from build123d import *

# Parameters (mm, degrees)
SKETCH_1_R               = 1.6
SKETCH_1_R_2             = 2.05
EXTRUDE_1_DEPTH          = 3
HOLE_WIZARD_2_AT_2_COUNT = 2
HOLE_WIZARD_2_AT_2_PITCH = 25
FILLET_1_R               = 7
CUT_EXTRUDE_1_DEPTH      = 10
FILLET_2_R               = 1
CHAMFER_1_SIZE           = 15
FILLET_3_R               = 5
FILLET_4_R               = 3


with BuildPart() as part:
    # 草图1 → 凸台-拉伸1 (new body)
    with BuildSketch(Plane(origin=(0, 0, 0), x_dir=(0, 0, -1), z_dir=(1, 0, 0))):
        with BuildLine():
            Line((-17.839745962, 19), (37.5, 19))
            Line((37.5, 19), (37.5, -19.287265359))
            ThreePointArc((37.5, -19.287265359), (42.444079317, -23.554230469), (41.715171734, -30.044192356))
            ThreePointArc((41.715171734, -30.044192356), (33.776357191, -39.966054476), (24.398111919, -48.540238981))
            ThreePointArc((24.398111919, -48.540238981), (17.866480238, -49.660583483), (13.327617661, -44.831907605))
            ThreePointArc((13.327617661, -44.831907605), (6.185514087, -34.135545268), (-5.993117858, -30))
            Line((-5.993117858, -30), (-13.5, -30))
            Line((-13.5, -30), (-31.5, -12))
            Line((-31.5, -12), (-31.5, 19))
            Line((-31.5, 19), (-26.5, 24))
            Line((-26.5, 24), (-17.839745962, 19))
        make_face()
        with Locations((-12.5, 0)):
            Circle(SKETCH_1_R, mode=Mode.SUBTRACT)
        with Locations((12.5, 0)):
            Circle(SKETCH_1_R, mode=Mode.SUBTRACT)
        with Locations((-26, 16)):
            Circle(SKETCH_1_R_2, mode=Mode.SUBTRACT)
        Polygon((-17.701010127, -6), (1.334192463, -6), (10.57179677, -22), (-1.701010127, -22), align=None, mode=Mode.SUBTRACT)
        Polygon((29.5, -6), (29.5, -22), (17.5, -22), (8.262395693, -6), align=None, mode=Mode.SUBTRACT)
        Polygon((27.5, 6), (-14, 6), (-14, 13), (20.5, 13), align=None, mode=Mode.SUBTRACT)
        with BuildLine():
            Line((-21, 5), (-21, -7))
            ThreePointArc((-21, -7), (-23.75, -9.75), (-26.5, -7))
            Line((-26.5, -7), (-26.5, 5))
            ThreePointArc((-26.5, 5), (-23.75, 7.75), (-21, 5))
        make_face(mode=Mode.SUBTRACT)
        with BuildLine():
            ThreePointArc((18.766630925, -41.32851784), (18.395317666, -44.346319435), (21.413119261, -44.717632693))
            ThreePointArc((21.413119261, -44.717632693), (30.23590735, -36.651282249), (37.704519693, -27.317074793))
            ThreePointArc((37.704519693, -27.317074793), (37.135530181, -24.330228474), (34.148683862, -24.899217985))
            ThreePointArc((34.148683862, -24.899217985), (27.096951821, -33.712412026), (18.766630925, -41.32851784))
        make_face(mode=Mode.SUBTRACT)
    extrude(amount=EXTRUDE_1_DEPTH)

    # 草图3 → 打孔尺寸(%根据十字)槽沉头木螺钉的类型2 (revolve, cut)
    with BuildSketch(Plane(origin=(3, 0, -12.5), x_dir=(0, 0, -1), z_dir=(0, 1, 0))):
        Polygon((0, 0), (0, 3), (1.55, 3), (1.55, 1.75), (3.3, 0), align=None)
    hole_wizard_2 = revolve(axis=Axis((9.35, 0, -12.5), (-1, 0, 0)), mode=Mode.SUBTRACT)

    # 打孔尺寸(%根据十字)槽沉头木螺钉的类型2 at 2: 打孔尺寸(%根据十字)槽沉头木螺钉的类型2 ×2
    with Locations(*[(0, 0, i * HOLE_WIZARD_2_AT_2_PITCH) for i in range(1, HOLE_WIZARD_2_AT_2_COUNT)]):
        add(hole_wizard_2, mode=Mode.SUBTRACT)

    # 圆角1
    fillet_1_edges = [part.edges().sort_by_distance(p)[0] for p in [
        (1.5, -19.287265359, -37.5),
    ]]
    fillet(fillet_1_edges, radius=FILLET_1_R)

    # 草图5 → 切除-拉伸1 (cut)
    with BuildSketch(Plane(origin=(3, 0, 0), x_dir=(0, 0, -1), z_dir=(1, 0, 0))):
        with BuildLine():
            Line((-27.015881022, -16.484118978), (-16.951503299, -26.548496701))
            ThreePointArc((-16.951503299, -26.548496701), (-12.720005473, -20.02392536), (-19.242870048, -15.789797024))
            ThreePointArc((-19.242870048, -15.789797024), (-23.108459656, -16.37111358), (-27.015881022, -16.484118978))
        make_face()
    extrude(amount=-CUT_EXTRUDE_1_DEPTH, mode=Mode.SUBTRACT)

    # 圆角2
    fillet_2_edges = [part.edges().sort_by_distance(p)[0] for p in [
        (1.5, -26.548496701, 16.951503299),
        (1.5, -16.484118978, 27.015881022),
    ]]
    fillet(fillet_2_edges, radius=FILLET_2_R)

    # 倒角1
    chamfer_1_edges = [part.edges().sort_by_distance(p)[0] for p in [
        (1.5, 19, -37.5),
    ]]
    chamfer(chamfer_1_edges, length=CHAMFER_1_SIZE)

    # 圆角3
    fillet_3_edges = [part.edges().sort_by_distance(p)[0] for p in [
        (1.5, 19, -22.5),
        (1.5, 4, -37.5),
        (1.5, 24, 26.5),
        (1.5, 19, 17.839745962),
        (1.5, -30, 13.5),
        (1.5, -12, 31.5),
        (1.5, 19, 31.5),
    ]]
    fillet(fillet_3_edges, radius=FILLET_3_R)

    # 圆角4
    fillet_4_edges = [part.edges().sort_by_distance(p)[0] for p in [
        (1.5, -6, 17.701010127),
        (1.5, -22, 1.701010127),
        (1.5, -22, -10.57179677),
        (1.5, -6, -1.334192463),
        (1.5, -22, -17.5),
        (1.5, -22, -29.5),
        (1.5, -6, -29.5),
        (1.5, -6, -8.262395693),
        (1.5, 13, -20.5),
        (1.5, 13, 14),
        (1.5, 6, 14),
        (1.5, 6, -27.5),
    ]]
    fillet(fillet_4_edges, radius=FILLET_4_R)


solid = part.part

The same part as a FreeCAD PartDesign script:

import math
import FreeCAD as App
import Part
import Sketcher
from FreeCAD import Vector
Q = App.Units.Quantity


def edges_at(feature, points):
    """Names of the edges that pass closest to the given points."""
    edges = feature.Shape.Edges
    near = lambda p: min(range(len(edges)), key=lambda i: edges[i].distToShape(Part.Vertex(*p))[0])
    return sorted({f"Edge{near(p) + 1}" for p in points})


def add_polygon(sketch, points):
    """Adds a closed chain of lines whose ends are joined by coincident constraints."""
    first, n = sketch.GeometryCount, len(points)
    for a, b in zip(points, points[1:] + points[:1]):
        sketch.addGeometry(Part.LineSegment(App.Vector(*a, 0), App.Vector(*b, 0)), False)
    for i in range(n):
        sketch.addConstraint(Sketcher.Constraint("Coincident", first + i, 2, first + (i + 1) % n, 1))

doc = App.newDocument("Part")
body = doc.addObject("PartDesign::Body", "Body")

# Sketch on YZ plane
sketch1 = body.newObject("Sketcher::SketchObject", "Sketch")
sketch1.AttachmentSupport = (doc.getObject("YZ_Plane"), [""])
sketch1.MapMode = "FlatFace"
sketch1.addGeometry(Part.LineSegment(Vector(19, -37.5, 0), Vector(19, 17.8, 0)), False)  # 0
sketch1.addGeometry(Part.LineSegment(Vector(19, 17.8, 0), Vector(24, 26.5, 0)), False)  # 1
sketch1.addGeometry(Part.LineSegment(Vector(24, 26.5, 0), Vector(19, 31.5, 0)), False)  # 2
sketch1.addGeometry(Part.LineSegment(Vector(19, 31.5, 0), Vector(-12, 31.5, 0)), False)  # 3
sketch1.addGeometry(Part.LineSegment(Vector(-12, 31.5, 0), Vector(-30, 13.5, 0)), False)  # 4
sketch1.addGeometry(Part.LineSegment(Vector(-30, 13.5, 0), Vector(-30, 6, 0)), False)  # 5
sketch1.addGeometry(Part.ArcOfCircle(Part.Circle(Vector(-50, 6, 0), Vector(0, 0, 1), 20), math.radians(-75), math.radians(0)), False)  # 6
sketch1.addGeometry(Part.ArcOfCircle(Part.Circle(Vector(-43, -20.1, 0), Vector(0, 0, 1), 7), math.radians(105), math.radians(218)), False)  # 7
sketch1.addGeometry(Part.ArcOfCircle(Part.Circle(Vector(16, 26, 0), Vector(0, 0, 1), 81.9), math.radians(-142.01), math.radians(-124.21)), False)  # 8
sketch1.addGeometry(Part.ArcOfCircle(Part.Circle(Vector(-26.1, -35.9, 0), Vector(0, 0, 1), 7), math.radians(-124), math.radians(-13)), False)  # 9
sketch1.addGeometry(Part.LineSegment(Vector(-19.3, -37.5, 0), Vector(19, -37.5, 0)), False)  # 10
sketch1.addGeometry(Part.ArcOfCircle(Part.Circle(Vector(16, 26, 0), Vector(0, 0, 1), 72.7), math.radians(-142.01), math.radians(-124.21)), False)  # 11
sketch1.addGeometry(Part.ArcOfCircle(Part.Circle(Vector(-26.1, -35.9, 0), Vector(0, 0, 1), 2.1), math.radians(-124), math.radians(56)), False)  # 12
sketch1.addGeometry(Part.ArcOfCircle(Part.Circle(Vector(16, 26, 0), Vector(0, 0, 1), 77), math.radians(-142.01), math.radians(-124.21)), False)  # 13
sketch1.addGeometry(Part.ArcOfCircle(Part.Circle(Vector(-43, -20.1, 0), Vector(0, 0, 1), 2.1), math.radians(38), math.radians(218)), False)  # 14
add_polygon(sketch1, [(-6, -29.5), (-22, -29.5), (-22, -17.5), (-6, -8.3)])  # lines 15-18
add_polygon(sketch1, [(-6, 17.7), (-6, -1.3), (-22, -10.6), (-22, 1.7)])  # lines 19-22
sketch1.addGeometry(Part.Circle(Vector(0, -12.5, 0), Vector(0, 0, 1), 1.6), False)  # 23
add_polygon(sketch1, [(6, -27.5), (6, 14), (13, 14), (13, -20.5)])  # lines 24-27
sketch1.addGeometry(Part.Circle(Vector(0, 12.5, 0), Vector(0, 0, 1), 1.6), False)  # 28
sketch1.addGeometry(Part.LineSegment(Vector(5, 21, 0), Vector(-7, 21, 0)), False)  # 29
sketch1.addGeometry(Part.ArcOfCircle(Part.Circle(Vector(-7, 23.8, 0), Vector(0, 0, 1), 2.8), math.radians(90), math.radians(270)), False)  # 30
sketch1.addGeometry(Part.LineSegment(Vector(-7, 26.5, 0), Vector(5, 26.5, 0)), False)  # 31
sketch1.addGeometry(Part.ArcOfCircle(Part.Circle(Vector(5, 23.8, 0), Vector(0, 0, 1), 2.8), math.radians(-90), math.radians(90)), False)  # 32
sketch1.addGeometry(Part.Circle(Vector(16, 26, 0), Vector(0, 0, 1), 2), False)  # 33
sketch1.addConstraint([
    Sketcher.Constraint("Coincident", 0, 2, 1, 1),
    Sketcher.Constraint("Coincident", 1, 2, 2, 1),
    Sketcher.Constraint("Coincident", 2, 2, 3, 1),
    Sketcher.Constraint("Coincident", 3, 2, 4, 1),
    Sketcher.Constraint("Coincident", 4, 2, 5, 1),
    Sketcher.Constraint("Tangent", 5, 2, 6, 2),
    Sketcher.Constraint("Tangent", 6, 1, 7, 1),
    Sketcher.Constraint("Tangent", 7, 2, 8, 1),
    Sketcher.Constraint("Tangent", 8, 2, 9, 1),
    Sketcher.Constraint("Coincident", 9, 2, 10, 1),
    Sketcher.Constraint("Coincident", 10, 2, 0, 1),
    Sketcher.Constraint("Tangent", 11, 2, 12, 2),
    Sketcher.Constraint("Tangent", 12, 1, 13, 2),
    Sketcher.Constraint("Tangent", 13, 1, 14, 2),
    Sketcher.Constraint("Tangent", 14, 1, 11, 1),
    Sketcher.Constraint("Tangent", 29, 2, 30, 2),
    Sketcher.Constraint("Tangent", 30, 1, 31, 1),
    Sketcher.Constraint("Tangent", 31, 2, 32, 2),
    Sketcher.Constraint("Tangent", 32, 1, 29, 1),
    Sketcher.Constraint("Vertical", 0),
    Sketcher.Constraint("Horizontal", 3),
    Sketcher.Constraint("Vertical", 5),
    Sketcher.Constraint("Horizontal", 10),
    Sketcher.Constraint("Horizontal", 15),
    Sketcher.Constraint("Vertical", 16),
    Sketcher.Constraint("Vertical", 18),
    Sketcher.Constraint("Vertical", 19),
    Sketcher.Constraint("Vertical", 21),
    Sketcher.Constraint("Vertical", 24),
    Sketcher.Constraint("Horizontal", 25),
    Sketcher.Constraint("Vertical", 26),
    Sketcher.Constraint("Horizontal", 29),
    Sketcher.Constraint("Horizontal", 31),
    Sketcher.Constraint("Coincident", 11, 3, 8, 3),
    Sketcher.Constraint("Coincident", 12, 3, 9, 3),
    Sketcher.Constraint("Coincident", 13, 3, 8, 3),
    Sketcher.Constraint("Coincident", 14, 3, 7, 3),
    Sketcher.Constraint("Coincident", 33, 3, 8, 3),
    Sketcher.Constraint("Equal", 23, 28),
    Sketcher.Constraint("Symmetric", 23, 3, 28, 3, -1, 1),
    Sketcher.Constraint("PointOnObject", 23, 3, -2),
    Sketcher.Constraint("Perpendicular", 2, 4),
    Sketcher.Constraint("Parallel", 17, 20),
    Sketcher.Constraint("Parallel", 4, 22),
    Sketcher.Constraint("Parallel", 22, 27),
    Sketcher.Constraint("Horizontal", 1, 2, 30, 1),
    Sketcher.Constraint("Vertical", 0, 2, 2, 2),
    Sketcher.Constraint("Vertical", 18, 2, 19, 2),
    Sketcher.Constraint("Vertical", 16, 2, 20, 2),
    Sketcher.Constraint("Equal", 31, 16),
    Sketcher.Constraint("Radius", 6, Q("20 mm")),
    Sketcher.Constraint("Radius", 7, Q("7 mm")),
    Sketcher.Constraint("Diameter", 23, Q("3.2 mm")),
    Sketcher.Constraint("Diameter", 33, Q("4.1 mm")),
    Sketcher.Constraint("DistanceX", 3, 2, 3, 1, Q("31 mm")),
    Sketcher.Constraint("DistanceX", 15, 2, 15, 1, Q("16 mm")),
    Sketcher.Constraint("DistanceX", 25, 1, 25, 2, Q("7 mm")),
    Sketcher.Constraint("DistanceX", 29, 2, 29, 1, Q("12 mm")),
    Sketcher.Constraint("Angle", 1, Q("60 deg")),
    Sketcher.Constraint("Angle", 2, Q("135 deg")),
    Sketcher.Constraint("Angle", 17, Q("30 deg")),
    Sketcher.Constraint("Radius", 12, Q("2.15 mm")),
    Sketcher.Constraint("Radius", 30, Q("2.75 mm")),
    Sketcher.Constraint("Distance", 1, Q("10 mm")),
    Sketcher.Constraint("DistanceY", 24, 1, 24, 2, Q("41.5 mm")),
    Sketcher.Constraint("DistanceX", 6, 3, -1, 1, Q("50 mm")),
    Sketcher.Constraint("DistanceX", -1, 1, 8, 3, Q("16 mm")),
    Sketcher.Constraint("DistanceY", -1, 1, 8, 3, Q("26 mm")),
    Sketcher.Constraint("DistanceX", 30, 3, -1, 1, Q("7 mm")),
    Sketcher.Constraint("DistanceX", -1, 1, 0, 2, Q("19 mm")),
    Sketcher.Constraint("DistanceX", 15, 2, -1, 1, Q("22 mm")),
    Sketcher.Constraint("DistanceX", -1, 1, 24, 2, Q("6 mm")),
    Sketcher.Constraint("DistanceY", -1, 1, 24, 2, Q("14 mm")),
    Sketcher.Constraint("DistanceY", -1, 1, 29, 2, Q("21 mm")),
    Sketcher.Constraint("DistanceY", 23, 3, 28, 3, Q("25 mm")),
    Sketcher.Constraint("DistanceY", 10, 2, 23, 3, Q("25 mm")),
    Sketcher.Constraint("DistanceY", 9, 2, 15, 2, Q("8 mm")),
    Sketcher.Constraint("Radius", 8, Q("81.886581 mm")),
    Sketcher.Constraint("DistanceY", 9, 3, -1, 1, Q("35.926602 mm")),
    Sketcher.Constraint("DistanceY", 20, 2, 17, 2, Q("2.309401 mm")),
    Sketcher.Constraint("DistanceY", 5, 2, 5, 1, Q("7.506882 mm")),
    Sketcher.Constraint("DistanceY", 19, 2, 19, 1, Q("19.035203 mm")),
])
pad1 = body.newObject("PartDesign::Pad", "Pad")
pad1.Profile = sketch1
pad1.Length = 3

# Sketch on XZ plane
sketch2 = body.newObject("Sketcher::SketchObject", "Sketch001")
sketch2.AttachmentSupport = (doc.getObject("XZ_Plane"), [""])
sketch2.MapMode = "FlatFace"
add_polygon(sketch2, [(0, -12.5), (3, -12.5), (3, -15.8), (1.2, -14.1), (0, -14.1)])  # lines 0-4
sketch2.addGeometry(Part.LineSegment(Vector(3, -12.5, 0), Vector(0, -12.5, 0)), True)  # axis
sketch2.addConstraint([
    Sketcher.Constraint("Horizontal", 0),
    Sketcher.Constraint("Vertical", 1),
    Sketcher.Constraint("Horizontal", 3),
    Sketcher.Constraint("Vertical", 4),
    Sketcher.Constraint("Horizontal", 5),
    Sketcher.Constraint("Coincident", 5, 1, 0, 2),
    Sketcher.Constraint("PointOnObject", 3, 2, -2),
    Sketcher.Constraint("PointOnObject", 5, 2, -2),
    Sketcher.Constraint("DistanceX", 0, 1, 0, 2, Q("3 mm")),
    Sketcher.Constraint("Angle", 2, Q("135 deg")),
    Sketcher.Constraint("DistanceY", 1, 2, 1, 1, Q("3.3 mm")),
    Sketcher.Constraint("DistanceX", 3, 2, 3, 1, Q("1.25 mm")),
    Sketcher.Constraint("DistanceY", 0, 2, -1, 1, Q("12.5 mm")),
])
groove = body.newObject("PartDesign::Groove", "Groove")
groove.Profile = sketch2
groove.ReferenceAxis = (sketch2, ["Axis0"])
groove.Angle = 360
doc.recompute()

linearpattern = body.newObject("PartDesign::LinearPattern", "LinearPattern")
linearpattern.Originals = [groove]
linearpattern.Direction = (doc.getObject("Z_Axis"), [""])
linearpattern.Mode = "offset"
linearpattern.Offset = 25
linearpattern.Occurrences = 2
body.Tip = linearpattern
doc.recompute()

fillet = body.newObject("PartDesign::Fillet", "Fillet")
fillet.Base = (linearpattern, edges_at(linearpattern, [(1.5, -19.287, -37.5)]))
fillet.Radius = 7

# Sketch on YZ plane
sketch3 = body.newObject("Sketcher::SketchObject", "Sketch002")
sketch3.AttachmentSupport = (doc.getObject("YZ_Plane"), [""])
sketch3.MapMode = "FlatFace"
sketch3.AttachmentOffset = App.Placement(Vector(0, 0, 3), App.Rotation())
sketch3.addGeometry([
    Part.LineSegment(Vector(-16, 27, 0), Vector(-27, 17, 0)),
    Part.ArcOfCircle(Part.Circle(Vector(-21, 18, 0), Vector(0, 0, 1), 6), math.radians(-168), math.radians(12)),
    Part.ArcOfCircle(Part.Circle(Vector(16, 26, 0), Vector(0, 0, 1), 33), math.radians(178.21), math.radians(192)),
], False)
sketch3.addConstraint([
    Sketcher.Constraint("Coincident", 0, 2, 1, 1),
    Sketcher.Constraint("Tangent", 1, 2, 2, 2),
    Sketcher.Constraint("Coincident", 2, 1, 0, 1),
    Sketcher.Constraint("Radius", 1, Q("5.5 mm")),
    Sketcher.Constraint("Radius", 2, Q("32.5 mm")),
    Sketcher.Constraint("Angle", 0, Q("-135 deg")),
    Sketcher.Constraint("DistanceX", -1, 1, 2, 3, Q("16 mm")),
    Sketcher.Constraint("DistanceY", -1, 1, 2, 3, Q("26 mm")),
    Sketcher.Constraint("DistanceX", 0, 2, 1, 2, Q("10.7587 mm")),
    Sketcher.Constraint("Distance", 0, Q("14.233179 mm")),
])
pocket1 = body.newObject("PartDesign::Pocket", "Pocket")
pocket1.Profile = sketch3
pocket1.Length = 10
doc.recompute()

fillet2 = body.newObject("PartDesign::Fillet", "Fillet001")
fillet2.Base = (pocket1, edges_at(pocket1, [(1.5, -26.548, 16.952), (1.5, -16.484, 27.016)]))
fillet2.Radius = 1
doc.recompute()

chamfer = body.newObject("PartDesign::Chamfer", "Chamfer")
chamfer.Base = (fillet2, edges_at(fillet2, [(1.5, 19, -37.5)]))
chamfer.Size = 15
doc.recompute()

fillet3 = body.newObject("PartDesign::Fillet", "Fillet002")
fillet3.Base = (chamfer, edges_at(chamfer, [
    (1.5, 19, -22.5),
    (1.5, 4, -37.5),
    (1.5, 24, 26.5),
    (1.5, 19, 17.84),
    (1.5, -30, 13.5),
    (1.5, -12, 31.5),
    (1.5, 19, 31.5),
]))
fillet3.Radius = 5
doc.recompute()

fillet4 = body.newObject("PartDesign::Fillet", "Fillet003")
fillet4.Base = (fillet3, edges_at(fillet3, [
    (1.5, -6, 17.701),
    (1.5, -22, 1.701),
    (1.5, -22, -10.572),
    (1.5, -6, -1.334),
    (1.5, -22, -17.5),
    (1.5, -22, -29.5),
    (1.5, -6, -29.5),
    (1.5, -6, -8.262),
    (1.5, 13, -20.5),
    (1.5, 13, 14),
    (1.5, 6, 14),
    (1.5, 6, -27.5),
]))
fillet4.Radius = 3

doc.recompute()
